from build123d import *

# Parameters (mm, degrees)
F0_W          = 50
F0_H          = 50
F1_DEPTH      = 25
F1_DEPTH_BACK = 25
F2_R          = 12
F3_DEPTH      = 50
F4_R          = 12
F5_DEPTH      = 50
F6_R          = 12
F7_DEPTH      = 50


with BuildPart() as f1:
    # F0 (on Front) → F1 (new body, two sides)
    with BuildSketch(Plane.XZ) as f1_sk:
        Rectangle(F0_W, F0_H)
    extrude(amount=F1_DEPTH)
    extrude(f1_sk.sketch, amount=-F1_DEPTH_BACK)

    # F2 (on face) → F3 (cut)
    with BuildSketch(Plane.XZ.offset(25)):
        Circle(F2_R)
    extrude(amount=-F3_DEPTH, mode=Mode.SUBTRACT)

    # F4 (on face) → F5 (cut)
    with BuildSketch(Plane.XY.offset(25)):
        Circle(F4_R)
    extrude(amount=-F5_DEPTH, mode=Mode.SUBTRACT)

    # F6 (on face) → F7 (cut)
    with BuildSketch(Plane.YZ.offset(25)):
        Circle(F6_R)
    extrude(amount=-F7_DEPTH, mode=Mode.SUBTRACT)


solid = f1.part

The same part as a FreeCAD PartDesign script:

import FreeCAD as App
import Part
import Sketcher

V = App.Vector

doc = App.newDocument("Part")
params = doc.addObject("Spreadsheet::Sheet", "Params")
for row, (alias, value) in enumerate([
    ("sketch1_width", "50 mm"),
    ("pad1_length", "25 mm"),
    ("pad1_length2", "25 mm"),
    ("sketch2_diameter", "24 mm"),
    ("pocket1_length", "50 mm"),
    ("sketch3_diameter", "24 mm"),
    ("pocket2_length", "50 mm"),
    ("sketch4_diameter", "24 mm"),
    ("pocket3_length", "50 mm"),
], start=1):
    params.set(f"A{row}", alias)
    params.set(f"B{row}", "=" + value)
    params.setAlias(f"B{row}", alias)

body = doc.addObject("PartDesign::Body", "Body")

# Sketch on XZ plane
sketch1 = body.newObject("Sketcher::SketchObject", "Sketch")
sketch1.AttachmentSupport = (doc.getObject("XZ_Plane"), [""])
sketch1.MapMode = "FlatFace"
sketch1.addGeometry([
    Part.LineSegment(V(-25, 25, 0), V(-25, -25, 0)),
    Part.LineSegment(V(-25, -25, 0), V(25, -25, 0)),
    Part.LineSegment(V(25, -25, 0), V(25, 25, 0)),
    Part.LineSegment(V(25, 25, 0), V(-25, 25, 0)),
], False)
sketch1.addConstraint([
    Sketcher.Constraint("Coincident", 0, 2, 1, 1),
    Sketcher.Constraint("Coincident", 1, 2, 2, 1),
    Sketcher.Constraint("Coincident", 2, 2, 3, 1),
    Sketcher.Constraint("Coincident", 3, 2, 0, 1),
    Sketcher.Constraint("Vertical", 0),
    Sketcher.Constraint("Horizontal", 1),
    Sketcher.Constraint("Vertical", 2),
    Sketcher.Constraint("Horizontal", 3),
    Sketcher.Constraint("Symmetric", 0, 2, 2, 2, -1, 1),
    Sketcher.Constraint("Equal", 3, 0),
    Sketcher.Constraint("DistanceX", 1, 1, 1, 2, 50.0),
])
sketch1.setExpression("Constraints[10]", "Params.sketch1_width")
pad1 = body.newObject("PartDesign::Pad", "Pad")
pad1.Profile = sketch1
pad1.Type = "TwoLengths"
pad1.setExpression("Length", "Params.pad1_length")
pad1.setExpression("Length2", "Params.pad1_length2")

# Sketch on XZ plane
sketch2 = body.newObject("Sketcher::SketchObject", "Sketch001")
sketch2.AttachmentSupport = (doc.getObject("XZ_Plane"), [""])
sketch2.MapMode = "FlatFace"
sketch2.AttachmentOffset = App.Placement(V(0, 0, 25), App.Rotation())
sketch2.addGeometry(Part.Circle(V(0, 0, 0), V(0, 0, 1), 12), False)
sketch2.addConstraint([
    Sketcher.Constraint("Coincident", 0, 3, -1, 1),
    Sketcher.Constraint("Diameter", 0, 24.0),
])
sketch2.setExpression("Constraints[1]", "Params.sketch2_diameter")
pocket1 = body.newObject("PartDesign::Pocket", "Pocket")
pocket1.Profile = sketch2
pocket1.setExpression("Length", "Params.pocket1_length")

# Sketch on XY plane
sketch3 = body.newObject("Sketcher::SketchObject", "Sketch002")
sketch3.AttachmentSupport = (doc.getObject("XY_Plane"), [""])
sketch3.MapMode = "FlatFace"
sketch3.AttachmentOffset = App.Placement(V(0, 0, 25), App.Rotation())
sketch3.addGeometry(Part.Circle(V(0, 0, 0), V(0, 0, 1), 12), False)
sketch3.addConstraint([
    Sketcher.Constraint("Coincident", 0, 3, -1, 1),
    Sketcher.Constraint("Diameter", 0, 24.0),
])
sketch3.setExpression("Constraints[1]", "Params.sketch3_diameter")
pocket2 = body.newObject("PartDesign::Pocket", "Pocket001")
pocket2.Profile = sketch3
pocket2.setExpression("Length", "Params.pocket2_length")

# Sketch on YZ plane
sketch4 = body.newObject("Sketcher::SketchObject", "Sketch003")
sketch4.AttachmentSupport = (doc.getObject("YZ_Plane"), [""])
sketch4.MapMode = "FlatFace"
sketch4.AttachmentOffset = App.Placement(V(0, 0, 25), App.Rotation())
sketch4.addGeometry(Part.Circle(V(0, 0, 0), V(0, 0, 1), 12), False)
sketch4.addConstraint([
    Sketcher.Constraint("Coincident", 0, 3, -1, 1),
    Sketcher.Constraint("Diameter", 0, 24.0),
])
sketch4.setExpression("Constraints[1]", "Params.sketch4_diameter")
pocket3 = body.newObject("PartDesign::Pocket", "Pocket002")
pocket3.Profile = sketch4
pocket3.setExpression("Length", "Params.pocket3_length")

doc.recompute()
